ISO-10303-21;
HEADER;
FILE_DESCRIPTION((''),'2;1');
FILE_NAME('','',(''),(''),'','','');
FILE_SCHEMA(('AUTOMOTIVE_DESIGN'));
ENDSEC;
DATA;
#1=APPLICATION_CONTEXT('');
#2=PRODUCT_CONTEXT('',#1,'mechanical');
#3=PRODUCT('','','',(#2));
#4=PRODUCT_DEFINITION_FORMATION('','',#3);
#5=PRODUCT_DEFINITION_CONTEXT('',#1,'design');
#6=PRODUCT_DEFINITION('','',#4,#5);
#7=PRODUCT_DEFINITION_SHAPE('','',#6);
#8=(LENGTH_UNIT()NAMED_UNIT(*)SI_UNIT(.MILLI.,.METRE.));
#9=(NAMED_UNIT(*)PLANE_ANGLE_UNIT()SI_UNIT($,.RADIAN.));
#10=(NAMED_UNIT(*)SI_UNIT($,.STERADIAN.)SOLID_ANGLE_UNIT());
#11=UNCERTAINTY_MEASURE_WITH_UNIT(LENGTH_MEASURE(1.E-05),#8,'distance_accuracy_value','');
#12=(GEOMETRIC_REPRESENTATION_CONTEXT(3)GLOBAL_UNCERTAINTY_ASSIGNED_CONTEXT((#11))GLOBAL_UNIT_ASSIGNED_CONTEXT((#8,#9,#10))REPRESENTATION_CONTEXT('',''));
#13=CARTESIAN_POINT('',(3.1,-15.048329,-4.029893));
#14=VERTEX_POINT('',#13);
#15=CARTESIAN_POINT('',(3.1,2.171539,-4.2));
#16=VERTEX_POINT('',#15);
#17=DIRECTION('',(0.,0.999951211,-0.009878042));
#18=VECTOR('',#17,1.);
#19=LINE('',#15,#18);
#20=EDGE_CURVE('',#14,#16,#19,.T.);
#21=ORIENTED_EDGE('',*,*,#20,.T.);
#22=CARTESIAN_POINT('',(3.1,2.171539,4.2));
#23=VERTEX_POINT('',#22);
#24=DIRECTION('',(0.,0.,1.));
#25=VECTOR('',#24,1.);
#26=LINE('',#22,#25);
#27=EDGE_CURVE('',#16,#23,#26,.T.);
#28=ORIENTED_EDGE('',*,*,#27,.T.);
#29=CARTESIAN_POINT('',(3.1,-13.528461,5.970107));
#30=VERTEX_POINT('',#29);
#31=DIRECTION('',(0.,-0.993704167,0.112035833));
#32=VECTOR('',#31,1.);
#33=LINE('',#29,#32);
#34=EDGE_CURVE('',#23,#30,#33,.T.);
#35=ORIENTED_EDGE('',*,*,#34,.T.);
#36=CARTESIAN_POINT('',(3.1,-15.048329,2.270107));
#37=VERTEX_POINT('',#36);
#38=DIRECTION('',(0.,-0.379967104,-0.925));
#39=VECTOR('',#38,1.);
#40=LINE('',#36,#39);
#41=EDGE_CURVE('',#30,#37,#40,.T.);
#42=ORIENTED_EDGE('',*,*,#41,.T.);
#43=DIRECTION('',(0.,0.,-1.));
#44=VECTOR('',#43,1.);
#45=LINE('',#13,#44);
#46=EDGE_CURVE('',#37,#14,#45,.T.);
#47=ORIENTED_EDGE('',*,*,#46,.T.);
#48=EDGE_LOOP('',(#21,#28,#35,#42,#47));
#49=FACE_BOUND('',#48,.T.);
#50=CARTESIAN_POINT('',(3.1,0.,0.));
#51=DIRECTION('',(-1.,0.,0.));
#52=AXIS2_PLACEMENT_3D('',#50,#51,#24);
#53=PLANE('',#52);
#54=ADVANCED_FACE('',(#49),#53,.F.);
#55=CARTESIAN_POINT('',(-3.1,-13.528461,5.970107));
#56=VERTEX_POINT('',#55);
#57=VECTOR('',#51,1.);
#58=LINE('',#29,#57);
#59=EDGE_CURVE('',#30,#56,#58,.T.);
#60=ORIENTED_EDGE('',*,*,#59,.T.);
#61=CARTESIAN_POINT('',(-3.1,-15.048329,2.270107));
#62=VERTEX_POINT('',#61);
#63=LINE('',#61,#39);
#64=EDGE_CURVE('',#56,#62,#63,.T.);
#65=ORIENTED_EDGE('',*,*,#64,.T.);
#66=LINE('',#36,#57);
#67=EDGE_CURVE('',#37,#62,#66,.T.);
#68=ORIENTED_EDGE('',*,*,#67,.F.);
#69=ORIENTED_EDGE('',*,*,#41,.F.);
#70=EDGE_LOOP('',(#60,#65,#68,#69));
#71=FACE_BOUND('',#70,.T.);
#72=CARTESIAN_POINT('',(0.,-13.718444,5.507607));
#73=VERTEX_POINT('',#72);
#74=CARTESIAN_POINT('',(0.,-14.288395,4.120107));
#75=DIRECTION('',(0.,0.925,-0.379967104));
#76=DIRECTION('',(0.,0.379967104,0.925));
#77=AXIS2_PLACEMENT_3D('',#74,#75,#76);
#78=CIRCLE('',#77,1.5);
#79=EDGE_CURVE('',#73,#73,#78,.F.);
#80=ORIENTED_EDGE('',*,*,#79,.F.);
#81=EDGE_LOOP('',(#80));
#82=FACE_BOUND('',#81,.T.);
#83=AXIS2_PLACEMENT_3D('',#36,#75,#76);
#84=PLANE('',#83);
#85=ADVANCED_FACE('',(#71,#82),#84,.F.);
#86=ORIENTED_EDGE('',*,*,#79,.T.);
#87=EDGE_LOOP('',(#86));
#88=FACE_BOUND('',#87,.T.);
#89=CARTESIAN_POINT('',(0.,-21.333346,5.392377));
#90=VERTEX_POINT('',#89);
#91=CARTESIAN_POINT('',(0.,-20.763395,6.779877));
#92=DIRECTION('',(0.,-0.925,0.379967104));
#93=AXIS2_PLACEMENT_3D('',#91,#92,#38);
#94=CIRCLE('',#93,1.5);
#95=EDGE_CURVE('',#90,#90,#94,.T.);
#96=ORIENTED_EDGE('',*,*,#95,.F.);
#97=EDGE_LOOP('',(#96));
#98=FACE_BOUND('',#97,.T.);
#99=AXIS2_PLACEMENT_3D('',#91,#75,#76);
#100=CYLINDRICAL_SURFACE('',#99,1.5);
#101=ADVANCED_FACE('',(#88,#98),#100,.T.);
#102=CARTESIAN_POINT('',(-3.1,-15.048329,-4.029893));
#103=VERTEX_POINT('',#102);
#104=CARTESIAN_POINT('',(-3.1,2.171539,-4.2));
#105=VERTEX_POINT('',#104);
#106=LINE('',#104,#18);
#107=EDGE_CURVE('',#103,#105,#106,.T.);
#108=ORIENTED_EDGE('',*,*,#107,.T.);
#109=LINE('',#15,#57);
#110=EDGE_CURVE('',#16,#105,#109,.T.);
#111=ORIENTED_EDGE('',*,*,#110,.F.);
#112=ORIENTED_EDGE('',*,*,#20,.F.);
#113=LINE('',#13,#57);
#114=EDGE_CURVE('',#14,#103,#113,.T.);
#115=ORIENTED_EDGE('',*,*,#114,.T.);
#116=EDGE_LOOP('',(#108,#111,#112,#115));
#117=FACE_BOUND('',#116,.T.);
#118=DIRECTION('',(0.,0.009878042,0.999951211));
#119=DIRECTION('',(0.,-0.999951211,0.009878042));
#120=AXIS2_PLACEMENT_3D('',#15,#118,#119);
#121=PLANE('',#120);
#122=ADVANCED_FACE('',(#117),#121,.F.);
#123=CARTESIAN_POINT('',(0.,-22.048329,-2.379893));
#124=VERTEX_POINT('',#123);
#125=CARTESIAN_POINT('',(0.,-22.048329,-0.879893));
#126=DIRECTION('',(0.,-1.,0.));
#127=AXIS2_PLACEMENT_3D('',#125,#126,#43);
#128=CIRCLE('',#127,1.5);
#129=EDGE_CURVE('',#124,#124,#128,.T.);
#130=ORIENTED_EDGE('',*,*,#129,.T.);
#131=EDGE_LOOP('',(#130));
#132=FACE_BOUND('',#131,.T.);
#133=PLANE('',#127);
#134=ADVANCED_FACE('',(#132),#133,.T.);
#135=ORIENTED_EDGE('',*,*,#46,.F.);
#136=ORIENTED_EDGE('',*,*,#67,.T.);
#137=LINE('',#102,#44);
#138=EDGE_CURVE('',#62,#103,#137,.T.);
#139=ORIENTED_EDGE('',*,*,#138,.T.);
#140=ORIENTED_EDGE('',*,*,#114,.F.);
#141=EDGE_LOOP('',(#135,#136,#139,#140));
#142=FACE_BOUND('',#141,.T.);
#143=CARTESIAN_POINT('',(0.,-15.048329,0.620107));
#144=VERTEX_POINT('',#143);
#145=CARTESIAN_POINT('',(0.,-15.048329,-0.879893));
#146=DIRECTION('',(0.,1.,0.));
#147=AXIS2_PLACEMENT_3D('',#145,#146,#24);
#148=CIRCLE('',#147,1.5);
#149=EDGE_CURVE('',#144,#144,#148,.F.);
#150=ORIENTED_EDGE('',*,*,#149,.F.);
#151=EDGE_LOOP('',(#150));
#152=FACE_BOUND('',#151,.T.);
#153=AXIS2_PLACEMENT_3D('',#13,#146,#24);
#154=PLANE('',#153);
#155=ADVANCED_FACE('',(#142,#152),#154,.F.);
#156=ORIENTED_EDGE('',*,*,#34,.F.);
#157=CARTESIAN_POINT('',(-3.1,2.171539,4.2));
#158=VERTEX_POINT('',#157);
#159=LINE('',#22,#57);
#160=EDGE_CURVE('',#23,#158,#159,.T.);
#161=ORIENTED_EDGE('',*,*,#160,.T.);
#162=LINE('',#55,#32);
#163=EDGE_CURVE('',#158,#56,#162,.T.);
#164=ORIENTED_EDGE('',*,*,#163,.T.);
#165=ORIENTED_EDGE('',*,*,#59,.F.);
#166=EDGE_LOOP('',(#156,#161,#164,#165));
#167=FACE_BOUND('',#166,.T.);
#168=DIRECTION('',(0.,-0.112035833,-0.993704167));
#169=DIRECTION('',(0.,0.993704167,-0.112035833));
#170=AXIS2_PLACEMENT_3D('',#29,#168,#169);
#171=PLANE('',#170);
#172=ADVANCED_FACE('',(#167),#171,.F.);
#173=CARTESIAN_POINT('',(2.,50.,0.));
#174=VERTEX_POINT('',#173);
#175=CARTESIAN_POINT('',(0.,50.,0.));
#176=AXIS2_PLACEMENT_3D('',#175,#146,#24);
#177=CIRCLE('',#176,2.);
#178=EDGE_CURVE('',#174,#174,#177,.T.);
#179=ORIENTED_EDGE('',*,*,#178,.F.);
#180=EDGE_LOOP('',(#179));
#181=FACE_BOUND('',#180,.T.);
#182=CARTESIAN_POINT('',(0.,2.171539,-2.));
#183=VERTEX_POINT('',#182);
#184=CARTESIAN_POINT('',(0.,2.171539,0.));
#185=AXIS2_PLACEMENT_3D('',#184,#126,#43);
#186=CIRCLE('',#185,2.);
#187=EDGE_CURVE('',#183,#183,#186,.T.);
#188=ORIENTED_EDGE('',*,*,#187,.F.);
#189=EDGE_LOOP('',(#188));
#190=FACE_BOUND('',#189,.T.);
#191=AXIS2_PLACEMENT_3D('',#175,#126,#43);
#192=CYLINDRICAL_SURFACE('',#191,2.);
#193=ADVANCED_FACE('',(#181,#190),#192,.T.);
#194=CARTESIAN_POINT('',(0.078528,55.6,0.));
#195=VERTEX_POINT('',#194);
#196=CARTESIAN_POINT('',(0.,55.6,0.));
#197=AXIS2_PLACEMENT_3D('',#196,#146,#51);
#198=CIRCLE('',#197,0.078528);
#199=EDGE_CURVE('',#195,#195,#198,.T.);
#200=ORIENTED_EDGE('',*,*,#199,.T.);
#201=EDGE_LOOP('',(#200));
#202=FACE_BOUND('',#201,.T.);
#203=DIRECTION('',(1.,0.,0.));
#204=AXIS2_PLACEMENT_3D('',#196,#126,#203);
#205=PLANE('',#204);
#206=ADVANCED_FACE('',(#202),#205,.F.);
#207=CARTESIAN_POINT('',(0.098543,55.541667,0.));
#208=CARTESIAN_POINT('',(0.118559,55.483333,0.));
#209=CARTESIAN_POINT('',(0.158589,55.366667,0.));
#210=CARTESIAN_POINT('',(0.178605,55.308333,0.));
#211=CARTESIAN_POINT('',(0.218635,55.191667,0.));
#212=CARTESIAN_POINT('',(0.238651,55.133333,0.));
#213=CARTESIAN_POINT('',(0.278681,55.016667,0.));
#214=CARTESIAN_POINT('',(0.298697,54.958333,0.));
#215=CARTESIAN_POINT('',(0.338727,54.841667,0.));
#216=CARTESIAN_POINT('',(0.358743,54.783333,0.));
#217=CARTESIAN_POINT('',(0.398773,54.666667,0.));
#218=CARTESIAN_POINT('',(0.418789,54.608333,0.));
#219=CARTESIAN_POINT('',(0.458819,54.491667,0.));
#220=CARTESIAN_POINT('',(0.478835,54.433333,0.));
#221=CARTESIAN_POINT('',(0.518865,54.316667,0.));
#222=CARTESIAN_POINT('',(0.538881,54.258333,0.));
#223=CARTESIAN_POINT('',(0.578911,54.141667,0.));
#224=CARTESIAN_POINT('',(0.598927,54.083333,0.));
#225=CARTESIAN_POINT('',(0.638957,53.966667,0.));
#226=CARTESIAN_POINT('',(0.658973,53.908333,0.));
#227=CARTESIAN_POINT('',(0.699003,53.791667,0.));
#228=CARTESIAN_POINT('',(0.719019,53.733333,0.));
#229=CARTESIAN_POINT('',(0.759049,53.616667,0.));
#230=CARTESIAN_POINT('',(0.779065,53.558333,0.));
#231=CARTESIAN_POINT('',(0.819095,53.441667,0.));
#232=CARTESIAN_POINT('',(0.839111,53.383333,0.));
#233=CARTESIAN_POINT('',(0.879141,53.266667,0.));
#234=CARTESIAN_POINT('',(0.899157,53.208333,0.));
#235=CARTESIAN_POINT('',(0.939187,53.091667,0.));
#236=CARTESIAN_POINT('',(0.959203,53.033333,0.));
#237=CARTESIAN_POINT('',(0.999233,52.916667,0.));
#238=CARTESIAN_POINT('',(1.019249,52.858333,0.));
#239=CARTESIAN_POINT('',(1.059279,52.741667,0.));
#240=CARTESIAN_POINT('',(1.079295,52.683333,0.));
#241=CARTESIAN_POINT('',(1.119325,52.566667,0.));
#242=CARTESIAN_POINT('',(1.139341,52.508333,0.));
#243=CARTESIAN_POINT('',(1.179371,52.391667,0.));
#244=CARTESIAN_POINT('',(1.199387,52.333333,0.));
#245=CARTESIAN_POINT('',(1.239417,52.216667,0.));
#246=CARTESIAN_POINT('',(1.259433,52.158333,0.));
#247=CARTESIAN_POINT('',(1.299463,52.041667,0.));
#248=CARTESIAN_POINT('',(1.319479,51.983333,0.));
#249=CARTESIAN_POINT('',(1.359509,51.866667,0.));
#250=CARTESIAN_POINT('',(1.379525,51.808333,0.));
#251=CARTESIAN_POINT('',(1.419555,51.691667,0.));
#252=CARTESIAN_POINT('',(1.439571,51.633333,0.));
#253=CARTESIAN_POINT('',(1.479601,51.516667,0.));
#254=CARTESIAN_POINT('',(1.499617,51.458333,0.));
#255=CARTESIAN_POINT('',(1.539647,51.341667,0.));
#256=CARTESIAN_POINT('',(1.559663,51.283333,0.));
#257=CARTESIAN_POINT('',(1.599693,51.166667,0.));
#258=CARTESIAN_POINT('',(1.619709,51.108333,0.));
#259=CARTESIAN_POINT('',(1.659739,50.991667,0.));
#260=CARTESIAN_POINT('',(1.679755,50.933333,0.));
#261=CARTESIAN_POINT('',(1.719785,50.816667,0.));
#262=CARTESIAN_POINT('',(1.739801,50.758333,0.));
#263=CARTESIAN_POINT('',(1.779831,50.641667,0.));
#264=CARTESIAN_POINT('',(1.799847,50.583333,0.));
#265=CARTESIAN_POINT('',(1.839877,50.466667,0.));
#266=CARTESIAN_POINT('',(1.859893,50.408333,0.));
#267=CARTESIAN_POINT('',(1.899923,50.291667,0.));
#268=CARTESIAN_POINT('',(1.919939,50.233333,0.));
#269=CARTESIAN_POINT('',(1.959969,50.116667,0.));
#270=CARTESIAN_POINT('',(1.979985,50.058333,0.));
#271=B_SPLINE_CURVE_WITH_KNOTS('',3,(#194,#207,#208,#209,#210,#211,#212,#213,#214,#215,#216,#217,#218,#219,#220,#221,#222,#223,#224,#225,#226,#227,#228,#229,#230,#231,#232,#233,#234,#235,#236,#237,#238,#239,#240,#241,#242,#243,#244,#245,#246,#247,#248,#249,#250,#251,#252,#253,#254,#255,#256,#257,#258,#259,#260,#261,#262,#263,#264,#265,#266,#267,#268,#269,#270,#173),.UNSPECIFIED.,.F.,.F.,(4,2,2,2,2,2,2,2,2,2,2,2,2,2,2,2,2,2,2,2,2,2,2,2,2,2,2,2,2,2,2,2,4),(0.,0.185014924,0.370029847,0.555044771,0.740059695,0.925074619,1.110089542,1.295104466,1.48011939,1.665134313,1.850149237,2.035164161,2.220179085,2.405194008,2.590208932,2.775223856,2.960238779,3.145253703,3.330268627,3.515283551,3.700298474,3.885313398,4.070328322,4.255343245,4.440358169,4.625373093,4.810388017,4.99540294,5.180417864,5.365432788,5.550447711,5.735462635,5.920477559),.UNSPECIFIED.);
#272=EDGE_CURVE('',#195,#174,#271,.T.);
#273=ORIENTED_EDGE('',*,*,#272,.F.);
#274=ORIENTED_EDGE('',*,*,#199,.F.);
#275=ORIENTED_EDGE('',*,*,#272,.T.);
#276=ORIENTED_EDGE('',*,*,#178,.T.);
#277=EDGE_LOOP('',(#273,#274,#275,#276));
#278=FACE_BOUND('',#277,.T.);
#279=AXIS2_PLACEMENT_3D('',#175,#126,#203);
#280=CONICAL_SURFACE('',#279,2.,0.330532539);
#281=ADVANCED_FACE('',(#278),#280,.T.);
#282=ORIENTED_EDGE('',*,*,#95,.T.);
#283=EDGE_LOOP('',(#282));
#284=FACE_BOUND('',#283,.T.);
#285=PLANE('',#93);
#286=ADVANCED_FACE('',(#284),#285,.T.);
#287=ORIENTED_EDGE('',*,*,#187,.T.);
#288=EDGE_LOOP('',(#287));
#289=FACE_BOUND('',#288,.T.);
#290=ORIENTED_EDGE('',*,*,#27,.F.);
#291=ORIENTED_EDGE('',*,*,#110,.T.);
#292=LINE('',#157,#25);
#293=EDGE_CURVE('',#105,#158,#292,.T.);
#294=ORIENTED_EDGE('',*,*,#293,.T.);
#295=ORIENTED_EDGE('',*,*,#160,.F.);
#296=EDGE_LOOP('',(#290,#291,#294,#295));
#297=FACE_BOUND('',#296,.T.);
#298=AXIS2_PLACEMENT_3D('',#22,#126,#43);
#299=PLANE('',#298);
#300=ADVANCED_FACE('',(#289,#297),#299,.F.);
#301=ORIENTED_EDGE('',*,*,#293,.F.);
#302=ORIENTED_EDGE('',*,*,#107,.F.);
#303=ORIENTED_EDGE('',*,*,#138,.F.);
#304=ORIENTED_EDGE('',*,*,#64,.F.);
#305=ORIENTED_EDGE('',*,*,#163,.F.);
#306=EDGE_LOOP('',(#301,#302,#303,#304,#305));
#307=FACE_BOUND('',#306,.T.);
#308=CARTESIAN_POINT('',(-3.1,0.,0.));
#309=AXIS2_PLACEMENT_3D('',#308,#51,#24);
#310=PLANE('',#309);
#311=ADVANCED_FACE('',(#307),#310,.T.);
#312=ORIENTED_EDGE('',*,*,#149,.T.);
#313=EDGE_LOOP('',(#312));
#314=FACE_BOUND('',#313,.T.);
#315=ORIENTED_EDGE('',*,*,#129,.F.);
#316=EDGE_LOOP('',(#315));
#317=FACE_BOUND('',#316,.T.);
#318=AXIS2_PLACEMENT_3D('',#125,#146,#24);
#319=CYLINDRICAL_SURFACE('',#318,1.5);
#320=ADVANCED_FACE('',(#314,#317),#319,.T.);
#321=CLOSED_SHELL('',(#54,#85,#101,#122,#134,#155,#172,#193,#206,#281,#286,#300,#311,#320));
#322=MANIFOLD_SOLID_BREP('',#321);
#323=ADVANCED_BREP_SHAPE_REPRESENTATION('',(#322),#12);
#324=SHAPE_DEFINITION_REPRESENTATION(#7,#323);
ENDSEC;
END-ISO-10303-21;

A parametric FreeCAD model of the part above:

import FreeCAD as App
import Part
import Sketcher

V = App.Vector
Q = App.Units.Quantity

doc = App.newDocument("Part")
body = doc.addObject("PartDesign::Body", "Body")

# Sketch on XZ plane
sketch1 = body.newObject("Sketcher::SketchObject", "Sketch")
sketch1.AttachmentSupport = (doc.getObject("XZ_Plane"), [""])
sketch1.MapMode = "FlatFace"
sketch1.addGeometry(Part.Circle(V(0, 0, 0), V(0, 0, 1), 2), False)
sketch1.addConstraint(Sketcher.Constraint("Coincident", 0, 3, -1, 1))
sketch1.addConstraint(Sketcher.Constraint("Diameter", 0, Q("4 mm")))
pad1 = body.newObject("PartDesign::Pad", "Pad")
pad1.Profile = sketch1
pad1.Length = 50
pad1.Reversed = True

# Sketch on XY plane
sketch2 = body.newObject("Sketcher::SketchObject", "Sketch001")
sketch2.AttachmentSupport = (doc.getObject("XY_Plane"), [""])
sketch2.MapMode = "FlatFace"
sketch2.addGeometry(Part.LineSegment(V(0, 55.6, 0), V(0, 50, 0)), False)
sketch2.addGeometry(Part.LineSegment(V(0, 50, 0), V(2, 50, 0)), False)
sketch2.addGeometry(Part.LineSegment(V(2, 50, 0), V(0.078528, 55.6, 0)), False)
sketch2.addGeometry(Part.LineSegment(V(0.078528, 55.6, 0), V(0, 55.6, 0)), False)
sketch2.addConstraint(Sketcher.Constraint("Coincident", 0, 2, 1, 1))
sketch2.addConstraint(Sketcher.Constraint("Coincident", 1, 2, 2, 1))
sketch2.addConstraint(Sketcher.Constraint("Coincident", 2, 2, 3, 1))
sketch2.addConstraint(Sketcher.Constraint("Coincident", 3, 2, 0, 1))
sketch2.addConstraint(Sketcher.Constraint("Vertical", 0))
sketch2.addConstraint(Sketcher.Constraint("Horizontal", 1))
sketch2.addConstraint(Sketcher.Constraint("Horizontal", 3))
sketch2.addConstraint(Sketcher.Constraint("PointOnObject", 0, 2, -2))
sketch2.addConstraint(Sketcher.Constraint("DistanceX", 1, 1, 1, 2, Q("2 mm")))
sketch2.addConstraint(Sketcher.Constraint("DistanceY", 0, 2, 0, 1, Q("5.6 mm")))
sketch2.addConstraint(Sketcher.Constraint("DistanceY", -1, 1, 0, 2, Q("50 mm")))
sketch2.addConstraint(Sketcher.Constraint("DistanceX", 3, 2, 3, 1, Q("0.078528 mm")))
revolution = body.newObject("PartDesign::Revolution", "Revolution")
revolution.Profile = sketch2
revolution.ReferenceAxis = (sketch2, ["V_Axis"])
revolution.Angle = 360

# Sketch on YZ plane
sketch3 = body.newObject("Sketcher::SketchObject", "Sketch002")
sketch3.AttachmentSupport = (doc.getObject("YZ_Plane"), [""])
sketch3.MapMode = "FlatFace"
sketch3.addGeometry(Part.LineSegment(V(2.171539, -4.2, 0), V(2.171539, 4.2, 0)), False)
sketch3.addGeometry(Part.LineSegment(V(2.171539, 4.2, 0), V(-13.528461, 5.970107, 0)), False)
sketch3.addGeometry(Part.LineSegment(V(-13.528461, 5.970107, 0), V(-15.048329, 2.270107, 0)), False)
sketch3.addGeometry(Part.LineSegment(V(-15.048329, 2.270107, 0), V(-15.048329, -4.029893, 0)), False)
sketch3.addGeometry(Part.LineSegment(V(-15.048329, -4.029893, 0), V(2.171539, -4.2, 0)), False)
sketch3.addConstraint(Sketcher.Constraint("Coincident", 0, 2, 1, 1))
sketch3.addConstraint(Sketcher.Constraint("Coincident", 1, 2, 2, 1))
sketch3.addConstraint(Sketcher.Constraint("Coincident", 2, 2, 3, 1))
sketch3.addConstraint(Sketcher.Constraint("Coincident", 3, 2, 4, 1))
sketch3.addConstraint(Sketcher.Constraint("Coincident", 4, 2, 0, 1))
sketch3.addConstraint(Sketcher.Constraint("Vertical", 0))
sketch3.addConstraint(Sketcher.Constraint("Vertical", 3))
sketch3.addConstraint(Sketcher.Constraint("Distance", 2, Q("4 mm")))
sketch3.addConstraint(Sketcher.Constraint("DistanceY", 0, 1, 0, 2, Q("8.4 mm")))
sketch3.addConstraint(Sketcher.Constraint("DistanceY", 3, 2, 3, 1, Q("6.3 mm")))
sketch3.addConstraint(Sketcher.Constraint("DistanceY", 3, 2, 1, 2, Q("10 mm")))
sketch3.addConstraint(Sketcher.Constraint("DistanceY", -1, 1, 0, 2, Q("4.2 mm")))
sketch3.addConstraint(Sketcher.Constraint("DistanceX", 1, 2, 0, 2, Q("15.7 mm")))
sketch3.addConstraint(Sketcher.Constraint("Distance", 1, Q("15.799471 mm")))
sketch3.addConstraint(Sketcher.Constraint("DistanceX", -1, 1, 0, 2, Q("2.171539 mm")))
pad2 = body.newObject("PartDesign::Pad", "Pad001")
pad2.Profile = sketch3
pad2.Length = 6.2
pad2.Midplane = True

# Sketch on an angled plane
sketch4 = body.newObject("Sketcher::SketchObject", "Sketch003")
sketch4.Placement = App.Placement(V(0, -13.6736, 5.616777), App.Rotation(V(-1, 0, 0), V(0, -0.379967104, -0.925), V(0, -0.925, 0.379967104), "ZXY"))
sketch4.addGeometry(Part.Circle(V(0, 1.618021, 0), V(0, 0, 1), 1.5), False)
sketch4.addConstraint(Sketcher.Constraint("PointOnObject", 0, 3, -2))
sketch4.addConstraint(Sketcher.Constraint("Diameter", 0, Q("3 mm")))
sketch4.addConstraint(Sketcher.Constraint("DistanceY", -1, 1, 0, 3, Q("1.618021 mm")))
pad3 = body.newObject("PartDesign::Pad", "Pad002")
pad3.Profile = sketch4
pad3.Length = 7

# Sketch on XZ plane
sketch5 = body.newObject("Sketcher::SketchObject", "Sketch004")
sketch5.AttachmentSupport = (doc.getObject("XZ_Plane"), [""])
sketch5.MapMode = "FlatFace"
sketch5.AttachmentOffset = App.Placement(V(0, 0, 15.048329), App.Rotation())
sketch5.addGeometry(Part.Circle(V(0, -0.879893, 0), V(0, 0, 1), 1.5), False)
sketch5.addConstraint(Sketcher.Constraint("PointOnObject", 0, 3, -2))
sketch5.addConstraint(Sketcher.Constraint("Diameter", 0, Q("3 mm")))
sketch5.addConstraint(Sketcher.Constraint("DistanceY", 0, 3, -1, 1, Q("0.879893 mm")))
pad4 = body.newObject("PartDesign::Pad", "Pad003")
pad4.Profile = sketch5
pad4.Length = 7

doc.recompute()
